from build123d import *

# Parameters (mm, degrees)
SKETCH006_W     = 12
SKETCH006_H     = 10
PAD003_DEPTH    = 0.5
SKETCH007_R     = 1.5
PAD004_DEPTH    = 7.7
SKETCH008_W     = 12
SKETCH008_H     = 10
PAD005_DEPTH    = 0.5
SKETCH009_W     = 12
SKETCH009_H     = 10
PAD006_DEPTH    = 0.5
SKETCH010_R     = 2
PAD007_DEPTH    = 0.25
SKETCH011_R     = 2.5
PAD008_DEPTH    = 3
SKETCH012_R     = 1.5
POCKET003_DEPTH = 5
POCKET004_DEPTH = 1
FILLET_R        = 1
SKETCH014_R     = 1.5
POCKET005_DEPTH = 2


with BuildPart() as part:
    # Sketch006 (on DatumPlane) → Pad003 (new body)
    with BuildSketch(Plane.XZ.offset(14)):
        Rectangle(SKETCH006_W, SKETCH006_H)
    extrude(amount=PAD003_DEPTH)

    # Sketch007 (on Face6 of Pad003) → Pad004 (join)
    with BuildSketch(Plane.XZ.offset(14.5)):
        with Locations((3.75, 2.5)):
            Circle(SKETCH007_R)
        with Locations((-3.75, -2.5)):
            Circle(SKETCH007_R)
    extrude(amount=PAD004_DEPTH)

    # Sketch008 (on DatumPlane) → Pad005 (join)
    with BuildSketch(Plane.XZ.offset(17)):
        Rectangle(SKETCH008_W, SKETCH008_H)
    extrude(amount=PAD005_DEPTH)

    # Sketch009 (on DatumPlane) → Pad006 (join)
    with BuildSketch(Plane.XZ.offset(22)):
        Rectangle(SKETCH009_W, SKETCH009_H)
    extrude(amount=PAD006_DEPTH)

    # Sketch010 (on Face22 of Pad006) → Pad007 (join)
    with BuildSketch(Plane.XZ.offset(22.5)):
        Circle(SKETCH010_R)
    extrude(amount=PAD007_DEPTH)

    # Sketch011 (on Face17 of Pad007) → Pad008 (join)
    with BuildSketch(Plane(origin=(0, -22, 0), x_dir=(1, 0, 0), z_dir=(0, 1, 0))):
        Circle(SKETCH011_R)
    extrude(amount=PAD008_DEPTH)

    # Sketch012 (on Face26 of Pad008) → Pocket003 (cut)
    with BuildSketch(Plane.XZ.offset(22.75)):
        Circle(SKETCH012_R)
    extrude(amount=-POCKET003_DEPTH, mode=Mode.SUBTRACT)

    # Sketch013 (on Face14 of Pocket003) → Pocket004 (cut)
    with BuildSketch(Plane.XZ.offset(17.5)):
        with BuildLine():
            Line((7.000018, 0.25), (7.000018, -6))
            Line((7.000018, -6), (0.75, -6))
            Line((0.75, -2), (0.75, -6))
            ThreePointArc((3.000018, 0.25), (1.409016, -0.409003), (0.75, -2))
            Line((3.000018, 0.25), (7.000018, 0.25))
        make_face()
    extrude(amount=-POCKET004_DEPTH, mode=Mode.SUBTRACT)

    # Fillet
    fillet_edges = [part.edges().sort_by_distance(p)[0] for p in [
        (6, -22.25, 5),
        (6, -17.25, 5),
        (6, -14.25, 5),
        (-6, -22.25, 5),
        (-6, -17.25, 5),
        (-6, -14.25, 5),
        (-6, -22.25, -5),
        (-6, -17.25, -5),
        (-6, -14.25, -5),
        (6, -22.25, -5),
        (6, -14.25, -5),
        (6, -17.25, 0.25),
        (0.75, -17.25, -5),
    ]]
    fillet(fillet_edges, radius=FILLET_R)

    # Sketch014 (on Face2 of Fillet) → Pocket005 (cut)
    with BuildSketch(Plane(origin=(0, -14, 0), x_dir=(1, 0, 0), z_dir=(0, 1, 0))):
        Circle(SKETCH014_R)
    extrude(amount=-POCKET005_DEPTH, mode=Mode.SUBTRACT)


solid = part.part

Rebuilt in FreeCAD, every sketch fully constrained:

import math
import FreeCAD as App
import Part
import Sketcher
Q = App.Units.Quantity


def edges_at(feature, points):
    """Names of the edges that pass closest to the given points."""
    edges = feature.Shape.Edges
    near = lambda p: min(range(len(edges)), key=lambda i: edges[i].distToShape(Part.Vertex(*p))[0])
    return sorted({f"Edge{near(p) + 1}" for p in points})

doc = App.newDocument("Part")
body = doc.addObject("PartDesign::Body", "Body")

# Sketch on XZ plane
sketch1 = body.newObject("Sketcher::SketchObject", "Sketch")
sketch1.AttachmentSupport = (doc.getObject("XZ_Plane"), [""])
sketch1.MapMode = "FlatFace"
sketch1.AttachmentOffset = App.Placement(App.Vector(0, 0, 14), App.Rotation())
sketch1.addGeometry(Part.LineSegment(App.Vector(-6, 5, 0), App.Vector(-6, -5, 0)), False)
sketch1.addGeometry(Part.LineSegment(App.Vector(-6, -5, 0), App.Vector(6, -5, 0)), False)
sketch1.addGeometry(Part.LineSegment(App.Vector(6, -5, 0), App.Vector(6, 5, 0)), False)
sketch1.addGeometry(Part.LineSegment(App.Vector(6, 5, 0), App.Vector(-6, 5, 0)), False)
sketch1.addConstraint(Sketcher.Constraint("Coincident", 0, 2, 1, 1))
sketch1.addConstraint(Sketcher.Constraint("Coincident", 1, 2, 2, 1))
sketch1.addConstraint(Sketcher.Constraint("Coincident", 2, 2, 3, 1))
sketch1.addConstraint(Sketcher.Constraint("Coincident", 3, 2, 0, 1))
sketch1.addConstraint(Sketcher.Constraint("Vertical", 0))
sketch1.addConstraint(Sketcher.Constraint("Horizontal", 1))
sketch1.addConstraint(Sketcher.Constraint("Vertical", 2))
sketch1.addConstraint(Sketcher.Constraint("Horizontal", 3))
sketch1.addConstraint(Sketcher.Constraint("Symmetric", 0, 2, 2, 2, -1, 1))
sketch1.addConstraint(Sketcher.Constraint("DistanceX", 1, 1, 1, 2, Q("12 mm")))
sketch1.addConstraint(Sketcher.Constraint("DistanceY", 0, 2, 0, 1, Q("10 mm")))
pad1 = body.newObject("PartDesign::Pad", "Pad")
pad1.Profile = sketch1
pad1.Length = 0.5

# Sketch on XZ plane
sketch2 = body.newObject("Sketcher::SketchObject", "Sketch001")
sketch2.AttachmentSupport = (doc.getObject("XZ_Plane"), [""])
sketch2.MapMode = "FlatFace"
sketch2.AttachmentOffset = App.Placement(App.Vector(0, 0, 14.5), App.Rotation())
sketch2.addGeometry(Part.Circle(App.Vector(3.8, 2.5, 0), App.Vector(0, 0, 1), 1.5), False)
sketch2.addGeometry(Part.Circle(App.Vector(-3.8, -2.5, 0), App.Vector(0, 0, 1), 1.5), False)
sketch2.addConstraint(Sketcher.Constraint("Equal", 0, 1))
sketch2.addConstraint(Sketcher.Constraint("Symmetric", 0, 3, 1, 3, -1, 1))
sketch2.addConstraint(Sketcher.Constraint("Diameter", 0, Q("3 mm")))
sketch2.addConstraint(Sketcher.Constraint("DistanceY", 1, 3, 0, 3, Q("5 mm")))
sketch2.addConstraint(Sketcher.Constraint("DistanceX", 1, 3, 0, 3, Q("7.5 mm")))
pad2 = body.newObject("PartDesign::Pad", "Pad001")
pad2.Profile = sketch2
pad2.Length = 7.7

# Sketch on XZ plane
sketch3 = body.newObject("Sketcher::SketchObject", "Sketch002")
sketch3.AttachmentSupport = (doc.getObject("XZ_Plane"), [""])
sketch3.MapMode = "FlatFace"
sketch3.AttachmentOffset = App.Placement(App.Vector(0, 0, 17), App.Rotation())
sketch3.addGeometry(Part.LineSegment(App.Vector(-6, 5, 0), App.Vector(-6, -5, 0)), False)
sketch3.addGeometry(Part.LineSegment(App.Vector(-6, -5, 0), App.Vector(6, -5, 0)), False)
sketch3.addGeometry(Part.LineSegment(App.Vector(6, -5, 0), App.Vector(6, 5, 0)), False)
sketch3.addGeometry(Part.LineSegment(App.Vector(6, 5, 0), App.Vector(-6, 5, 0)), False)
sketch3.addConstraint(Sketcher.Constraint("Coincident", 0, 2, 1, 1))
sketch3.addConstraint(Sketcher.Constraint("Coincident", 1, 2, 2, 1))
sketch3.addConstraint(Sketcher.Constraint("Coincident", 2, 2, 3, 1))
sketch3.addConstraint(Sketcher.Constraint("Coincident", 3, 2, 0, 1))
sketch3.addConstraint(Sketcher.Constraint("Vertical", 0))
sketch3.addConstraint(Sketcher.Constraint("Horizontal", 1))
sketch3.addConstraint(Sketcher.Constraint("Vertical", 2))
sketch3.addConstraint(Sketcher.Constraint("Horizontal", 3))
sketch3.addConstraint(Sketcher.Constraint("Symmetric", 0, 2, 2, 2, -1, 1))
sketch3.addConstraint(Sketcher.Constraint("DistanceX", 1, 1, 1, 2, Q("12 mm")))
sketch3.addConstraint(Sketcher.Constraint("DistanceY", 0, 2, 0, 1, Q("10 mm")))
pad3 = body.newObject("PartDesign::Pad", "Pad002")
pad3.Profile = sketch3
pad3.Length = 0.5

# Sketch on XZ plane
sketch4 = body.newObject("Sketcher::SketchObject", "Sketch003")
sketch4.AttachmentSupport = (doc.getObject("XZ_Plane"), [""])
sketch4.MapMode = "FlatFace"
sketch4.AttachmentOffset = App.Placement(App.Vector(0, 0, 22), App.Rotation())
sketch4.addGeometry(Part.LineSegment(App.Vector(-6, 5, 0), App.Vector(-6, -5, 0)), False)
sketch4.addGeometry(Part.LineSegment(App.Vector(-6, -5, 0), App.Vector(6, -5, 0)), False)
sketch4.addGeometry(Part.LineSegment(App.Vector(6, -5, 0), App.Vector(6, 5, 0)), False)
sketch4.addGeometry(Part.LineSegment(App.Vector(6, 5, 0), App.Vector(-6, 5, 0)), False)
sketch4.addConstraint(Sketcher.Constraint("Coincident", 0, 2, 1, 1))
sketch4.addConstraint(Sketcher.Constraint("Coincident", 1, 2, 2, 1))
sketch4.addConstraint(Sketcher.Constraint("Coincident", 2, 2, 3, 1))
sketch4.addConstraint(Sketcher.Constraint("Coincident", 3, 2, 0, 1))
sketch4.addConstraint(Sketcher.Constraint("Vertical", 0))
sketch4.addConstraint(Sketcher.Constraint("Horizontal", 1))
sketch4.addConstraint(Sketcher.Constraint("Vertical", 2))
sketch4.addConstraint(Sketcher.Constraint("Horizontal", 3))
sketch4.addConstraint(Sketcher.Constraint("Symmetric", 0, 2, 2, 2, -1, 1))
sketch4.addConstraint(Sketcher.Constraint("DistanceX", 1, 1, 1, 2, Q("12 mm")))
sketch4.addConstraint(Sketcher.Constraint("DistanceY", 0, 2, 0, 1, Q("10 mm")))
pad4 = body.newObject("PartDesign::Pad", "Pad003")
pad4.Profile = sketch4
pad4.Length = 0.5

# Sketch on XZ plane
sketch5 = body.newObject("Sketcher::SketchObject", "Sketch004")
sketch5.AttachmentSupport = (doc.getObject("XZ_Plane"), [""])
sketch5.MapMode = "FlatFace"
sketch5.AttachmentOffset = App.Placement(App.Vector(0, 0, 22.5), App.Rotation())
sketch5.addGeometry(Part.Circle(App.Vector(0, 0, 0), App.Vector(0, 0, 1), 2), False)
sketch5.addConstraint(Sketcher.Constraint("Coincident", 0, 3, -1, 1))
sketch5.addConstraint(Sketcher.Constraint("Diameter", 0, Q("4 mm")))
pad5 = body.newObject("PartDesign::Pad", "Pad004")
pad5.Profile = sketch5
pad5.Length = 0.25

# Sketch on XZ plane
sketch6 = body.newObject("Sketcher::SketchObject", "Sketch005")
sketch6.AttachmentSupport = (doc.getObject("XZ_Plane"), [""])
sketch6.MapMode = "FlatFace"
sketch6.AttachmentOffset = App.Placement(App.Vector(0, 0, 22), App.Rotation())
sketch6.addGeometry(Part.Circle(App.Vector(0, 0, 0), App.Vector(0, 0, 1), 2.5), False)
sketch6.addConstraint(Sketcher.Constraint("Coincident", 0, 3, -1, 1))
sketch6.addConstraint(Sketcher.Constraint("Diameter", 0, Q("5 mm")))
pad6 = body.newObject("PartDesign::Pad", "Pad005")
pad6.Profile = sketch6
pad6.Length = 3
pad6.Reversed = True

# Sketch on XZ plane
sketch7 = body.newObject("Sketcher::SketchObject", "Sketch006")
sketch7.AttachmentSupport = (doc.getObject("XZ_Plane"), [""])
sketch7.MapMode = "FlatFace"
sketch7.AttachmentOffset = App.Placement(App.Vector(0, 0, 22.75), App.Rotation())
sketch7.addGeometry(Part.Circle(App.Vector(0, 0, 0), App.Vector(0, 0, 1), 1.5), False)
sketch7.addConstraint(Sketcher.Constraint("Coincident", 0, 3, -1, 1))
sketch7.addConstraint(Sketcher.Constraint("Diameter", 0, Q("3 mm")))
pocket1 = body.newObject("PartDesign::Pocket", "Pocket")
pocket1.Profile = sketch7
pocket1.Length = 5

# Sketch on XZ plane
sketch8 = body.newObject("Sketcher::SketchObject", "Sketch007")
sketch8.AttachmentSupport = (doc.getObject("XZ_Plane"), [""])
sketch8.MapMode = "FlatFace"
sketch8.AttachmentOffset = App.Placement(App.Vector(0, 0, 17.5), App.Rotation())
sketch8.addGeometry(Part.LineSegment(App.Vector(7, -6, 0), App.Vector(7, 0.2, 0)), False)
sketch8.addGeometry(Part.LineSegment(App.Vector(7, 0.2, 0), App.Vector(3, 0.2, 0)), False)
sketch8.addGeometry(Part.ArcOfCircle(Part.Circle(App.Vector(3, -2, 0), App.Vector(0, 0, 1), 2.2), math.radians(90), math.radians(180)), False)
sketch8.addGeometry(Part.LineSegment(App.Vector(0.8, -2, 0), App.Vector(0.8, -6, 0)), False)
sketch8.addGeometry(Part.LineSegment(App.Vector(0.8, -6, 0), App.Vector(7, -6, 0)), False)
sketch8.addConstraint(Sketcher.Constraint("Coincident", 0, 2, 1, 1))
sketch8.addConstraint(Sketcher.Constraint("Coincident", 1, 2, 2, 1))
sketch8.addConstraint(Sketcher.Constraint("Tangent", 2, 2, 3, 1))
sketch8.addConstraint(Sketcher.Constraint("Coincident", 3, 2, 4, 1))
sketch8.addConstraint(Sketcher.Constraint("Coincident", 4, 2, 0, 1))
sketch8.addConstraint(Sketcher.Constraint("Vertical", 0))
sketch8.addConstraint(Sketcher.Constraint("Horizontal", 1))
sketch8.addConstraint(Sketcher.Constraint("Vertical", 3))
sketch8.addConstraint(Sketcher.Constraint("Horizontal", 4))
sketch8.addConstraint(Sketcher.Constraint("Equal", 1, 3))
sketch8.addConstraint(Sketcher.Constraint("DistanceX", 1, 2, 1, 1, Q("4 mm")))
sketch8.addConstraint(Sketcher.Constraint("Radius", 2, Q("2.249999 mm")))
sketch8.addConstraint(Sketcher.Constraint("DistanceX", -1, 1, 2, 3, Q("2.999999 mm")))
sketch8.addConstraint(Sketcher.Constraint("DistanceY", 2, 3, -1, 1, Q("1.999999 mm")))
sketch8.addConstraint(Sketcher.Constraint("DistanceX", 4, 1, 4, 2, Q("6.250018 mm")))
pocket2 = body.newObject("PartDesign::Pocket", "Pocket001")
pocket2.Profile = sketch8
pocket2.Length = 1
doc.recompute()

fillet = body.newObject("PartDesign::Fillet", "Fillet")
fillet.Base = (pocket2, edges_at(pocket2, [
    (6, -22.25, 5),
    (6, -17.25, 5),
    (6, -14.25, 5),
    (-6, -22.25, 5),
    (-6, -17.25, 5),
    (-6, -14.25, 5),
    (-6, -22.25, -5),
    (-6, -17.25, -5),
    (-6, -14.25, -5),
    (6, -22.25, -5),
    (6, -14.25, -5),
    (6, -17.25, 0.25),
    (0.75, -17.25, -5),
]))
fillet.Radius = 1

# Sketch on XZ plane
sketch9 = body.newObject("Sketcher::SketchObject", "Sketch008")
sketch9.AttachmentSupport = (doc.getObject("XZ_Plane"), [""])
sketch9.MapMode = "FlatFace"
sketch9.AttachmentOffset = App.Placement(App.Vector(0, 0, 14), App.Rotation())
sketch9.addGeometry(Part.Circle(App.Vector(0, 0, 0), App.Vector(0, 0, 1), 1.5), False)
sketch9.addConstraint(Sketcher.Constraint("Coincident", 0, 3, -1, 1))
sketch9.addConstraint(Sketcher.Constraint("Diameter", 0, Q("3 mm")))
pocket3 = body.newObject("PartDesign::Pocket", "Pocket002")
pocket3.Profile = sketch9
pocket3.Length = 2
pocket3.Reversed = True

doc.recompute()
